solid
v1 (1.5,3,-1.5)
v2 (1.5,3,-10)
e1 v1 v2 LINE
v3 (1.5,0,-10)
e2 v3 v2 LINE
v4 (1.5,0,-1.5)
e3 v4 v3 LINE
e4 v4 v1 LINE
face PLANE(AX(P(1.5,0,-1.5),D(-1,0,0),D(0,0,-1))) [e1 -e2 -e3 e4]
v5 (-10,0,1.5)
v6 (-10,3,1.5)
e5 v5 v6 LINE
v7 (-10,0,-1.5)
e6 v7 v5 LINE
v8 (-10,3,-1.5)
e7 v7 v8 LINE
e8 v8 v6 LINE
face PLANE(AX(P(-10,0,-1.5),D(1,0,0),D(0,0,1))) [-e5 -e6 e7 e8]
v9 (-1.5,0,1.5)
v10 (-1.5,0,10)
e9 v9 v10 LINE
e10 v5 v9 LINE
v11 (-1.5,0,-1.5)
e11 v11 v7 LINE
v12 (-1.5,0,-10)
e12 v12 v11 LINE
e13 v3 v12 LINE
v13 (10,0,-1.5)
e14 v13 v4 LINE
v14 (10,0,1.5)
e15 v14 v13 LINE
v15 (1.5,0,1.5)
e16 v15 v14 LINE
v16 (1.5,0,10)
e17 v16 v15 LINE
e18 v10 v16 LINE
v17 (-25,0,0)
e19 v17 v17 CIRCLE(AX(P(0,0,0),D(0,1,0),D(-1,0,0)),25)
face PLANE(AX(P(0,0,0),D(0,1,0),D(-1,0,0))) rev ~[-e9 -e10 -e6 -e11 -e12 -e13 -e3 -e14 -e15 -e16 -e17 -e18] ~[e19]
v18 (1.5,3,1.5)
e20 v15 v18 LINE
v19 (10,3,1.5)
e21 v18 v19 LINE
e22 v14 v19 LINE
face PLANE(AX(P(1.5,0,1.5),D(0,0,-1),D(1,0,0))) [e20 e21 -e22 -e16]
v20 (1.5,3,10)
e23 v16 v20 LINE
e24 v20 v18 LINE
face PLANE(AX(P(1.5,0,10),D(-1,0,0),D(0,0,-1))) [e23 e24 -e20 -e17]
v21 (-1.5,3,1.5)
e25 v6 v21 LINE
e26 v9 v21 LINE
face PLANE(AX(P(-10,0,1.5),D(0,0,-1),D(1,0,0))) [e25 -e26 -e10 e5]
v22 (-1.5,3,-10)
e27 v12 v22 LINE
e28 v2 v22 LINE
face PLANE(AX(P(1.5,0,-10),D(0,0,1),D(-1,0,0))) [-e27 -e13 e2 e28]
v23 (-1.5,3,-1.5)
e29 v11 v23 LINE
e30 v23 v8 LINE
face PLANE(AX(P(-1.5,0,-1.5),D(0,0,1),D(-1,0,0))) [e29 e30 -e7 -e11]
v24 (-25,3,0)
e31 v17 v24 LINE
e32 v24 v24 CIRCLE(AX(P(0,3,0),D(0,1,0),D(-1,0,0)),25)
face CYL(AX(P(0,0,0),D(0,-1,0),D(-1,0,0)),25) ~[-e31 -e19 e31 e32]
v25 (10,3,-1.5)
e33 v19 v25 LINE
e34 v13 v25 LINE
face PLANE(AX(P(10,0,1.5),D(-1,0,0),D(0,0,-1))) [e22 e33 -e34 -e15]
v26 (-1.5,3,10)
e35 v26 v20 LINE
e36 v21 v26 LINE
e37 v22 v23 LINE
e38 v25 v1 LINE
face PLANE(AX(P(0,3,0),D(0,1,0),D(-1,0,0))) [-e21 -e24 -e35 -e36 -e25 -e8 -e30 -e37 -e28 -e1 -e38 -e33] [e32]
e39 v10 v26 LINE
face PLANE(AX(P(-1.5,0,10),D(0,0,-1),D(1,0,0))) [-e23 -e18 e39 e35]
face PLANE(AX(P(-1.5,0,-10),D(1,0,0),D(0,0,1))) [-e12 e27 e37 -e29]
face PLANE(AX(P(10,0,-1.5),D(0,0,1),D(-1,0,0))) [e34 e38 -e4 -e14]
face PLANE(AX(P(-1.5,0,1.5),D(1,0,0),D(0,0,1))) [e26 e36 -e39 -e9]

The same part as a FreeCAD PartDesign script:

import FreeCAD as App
import Part
import Sketcher
Q = App.Units.Quantity

doc = App.newDocument("Part")
body = doc.addObject("PartDesign::Body", "Body")

# Sketch on XZ plane
sketch1 = doc.addObject("Sketcher::SketchObject", "Sketch")
body.addObject(sketch1)
sketch1.AttachmentSupport = (doc.XZ_Plane, [""])
sketch1.MapMode = "FlatFace"
sketch1.addGeometry([
    Part.Circle(App.Vector(0, 0, 0), App.Vector(0, 0, 1), 25),  # 0
    Part.LineSegment(App.Vector(-1.5, 1.5, 0), App.Vector(-10, 1.5, 0)),  # 1
    Part.LineSegment(App.Vector(-10, 1.5, 0), App.Vector(-10, -1.5, 0)),  # 2
    Part.LineSegment(App.Vector(-10, -1.5, 0), App.Vector(-1.5, -1.5, 0)),  # 3
    Part.LineSegment(App.Vector(-1.5, -1.5, 0), App.Vector(-1.5, -10, 0)),  # 4
    Part.LineSegment(App.Vector(-1.5, -10, 0), App.Vector(1.5, -10, 0)),  # 5
    Part.LineSegment(App.Vector(1.5, -10, 0), App.Vector(1.5, -1.5, 0)),  # 6
    Part.LineSegment(App.Vector(1.5, -1.5, 0), App.Vector(10, -1.5, 0)),  # 7
    Part.LineSegment(App.Vector(10, -1.5, 0), App.Vector(10, 1.5, 0)),  # 8
    Part.LineSegment(App.Vector(10, 1.5, 0), App.Vector(1.5, 1.5, 0)),  # 9
    Part.LineSegment(App.Vector(1.5, 1.5, 0), App.Vector(1.5, 10, 0)),  # 10
    Part.LineSegment(App.Vector(1.5, 10, 0), App.Vector(-1.5, 10, 0)),  # 11
    Part.LineSegment(App.Vector(-1.5, 10, 0), App.Vector(-1.5, 1.5, 0)),  # 12
], False)
sketch1.addConstraint([
    Sketcher.Constraint("Coincident", 1, 2, 2, 1),
    Sketcher.Constraint("Coincident", 2, 2, 3, 1),
    Sketcher.Constraint("Coincident", 3, 2, 4, 1),
    Sketcher.Constraint("Coincident", 4, 2, 5, 1),
    Sketcher.Constraint("Coincident", 5, 2, 6, 1),
    Sketcher.Constraint("Coincident", 6, 2, 7, 1),
    Sketcher.Constraint("Coincident", 7, 2, 8, 1),
    Sketcher.Constraint("Coincident", 8, 2, 9, 1),
    Sketcher.Constraint("Coincident", 9, 2, 10, 1),
    Sketcher.Constraint("Coincident", 10, 2, 11, 1),
    Sketcher.Constraint("Coincident", 11, 2, 12, 1),
    Sketcher.Constraint("Coincident", 12, 2, 1, 1),
    Sketcher.Constraint("Horizontal", 1),
    Sketcher.Constraint("Vertical", 2),
    Sketcher.Constraint("Horizontal", 3),
    Sketcher.Constraint("Vertical", 4),
    Sketcher.Constraint("Horizontal", 5),
    Sketcher.Constraint("Vertical", 6),
    Sketcher.Constraint("Horizontal", 7),
    Sketcher.Constraint("Vertical", 8),
    Sketcher.Constraint("Horizontal", 9),
    Sketcher.Constraint("Vertical", 10),
    Sketcher.Constraint("Horizontal", 11),
    Sketcher.Constraint("Vertical", 12),
    Sketcher.Constraint("Coincident", 0, 3, -1, 1),
    Sketcher.Constraint("Symmetric", 1, 2, 7, 2, -1, 1),
    Sketcher.Constraint("Symmetric", 3, 2, 9, 2, -1, 1),
    Sketcher.Constraint("Symmetric", 5, 2, 11, 2, -1, 1),
    Sketcher.Constraint("Symmetric", 3, 2, 6, 2, -2),
    Sketcher.Constraint("Equal", 11, 2),
    Sketcher.Constraint("Equal", 9, 4),
    Sketcher.Constraint("Diameter", 0, Q("50 mm")),
    Sketcher.Constraint("DistanceX", 5, 1, 5, 2, Q("3 mm")),
    Sketcher.Constraint("DistanceX", 1, 2, -1, 1, Q("10 mm")),
])
pad1 = doc.addObject("PartDesign::Pad", "Pad")
body.addObject(pad1)
pad1.Profile = sketch1
pad1.Length = 3
pad1.Reversed = True

doc.recompute()
